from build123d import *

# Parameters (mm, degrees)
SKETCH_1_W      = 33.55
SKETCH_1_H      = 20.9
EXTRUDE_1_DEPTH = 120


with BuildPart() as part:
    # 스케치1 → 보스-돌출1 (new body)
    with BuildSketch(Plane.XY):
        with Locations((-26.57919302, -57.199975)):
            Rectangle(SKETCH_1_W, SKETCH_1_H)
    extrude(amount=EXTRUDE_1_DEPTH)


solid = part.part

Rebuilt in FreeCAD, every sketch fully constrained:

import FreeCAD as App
import Part
import Sketcher

doc = App.newDocument("Part")
body = doc.addObject("PartDesign::Body", "Body")

sketch1 = body.newObject("Sketcher::SketchObject", "Sketch")
sketch1.AttachmentSupport = (doc.getObject("XY_Plane"), [""])
sketch1.MapMode = "FlatFace"
sketch1.addGeometry(Part.LineSegment(App.Vector(-43, -47, 0), App.Vector(-43, -68, 0)), False)
sketch1.addGeometry(Part.LineSegment(App.Vector(-43, -68, 0), App.Vector(-10, -68, 0)), False)
sketch1.addGeometry(Part.LineSegment(App.Vector(-10, -68, 0), App.Vector(-10, -47, 0)), False)
sketch1.addGeometry(Part.LineSegment(App.Vector(-10, -47, 0), App.Vector(-43, -47, 0)), False)
sketch1.addConstraint(Sketcher.Constraint("Coincident", 0, 2, 1, 1))
sketch1.addConstraint(Sketcher.Constraint("Coincident", 1, 2, 2, 1))
sketch1.addConstraint(Sketcher.Constraint("Coincident", 2, 2, 3, 1))
sketch1.addConstraint(Sketcher.Constraint("Coincident", 3, 2, 0, 1))
sketch1.addConstraint(Sketcher.Constraint("Vertical", 0))
sketch1.addConstraint(Sketcher.Constraint("Horizontal", 1))
sketch1.addConstraint(Sketcher.Constraint("Vertical", 2))
sketch1.addConstraint(Sketcher.Constraint("Horizontal", 3))
sketch1.addConstraint(Sketcher.Constraint("DistanceY", 0, 2, 0, 1, 20.9))
sketch1.addConstraint(Sketcher.Constraint("DistanceX", 1, 1, 1, 2, 33.55))
sketch1.addConstraint(Sketcher.Constraint("DistanceX", 0, 2, -1, 1, 43.354193))
sketch1.addConstraint(Sketcher.Constraint("DistanceY", 0, 2, -1, 1, 67.649975))
pad1 = body.newObject("PartDesign::Pad", "Pad")
pad1.Profile = sketch1
pad1.Length = 120

doc.recompute()
